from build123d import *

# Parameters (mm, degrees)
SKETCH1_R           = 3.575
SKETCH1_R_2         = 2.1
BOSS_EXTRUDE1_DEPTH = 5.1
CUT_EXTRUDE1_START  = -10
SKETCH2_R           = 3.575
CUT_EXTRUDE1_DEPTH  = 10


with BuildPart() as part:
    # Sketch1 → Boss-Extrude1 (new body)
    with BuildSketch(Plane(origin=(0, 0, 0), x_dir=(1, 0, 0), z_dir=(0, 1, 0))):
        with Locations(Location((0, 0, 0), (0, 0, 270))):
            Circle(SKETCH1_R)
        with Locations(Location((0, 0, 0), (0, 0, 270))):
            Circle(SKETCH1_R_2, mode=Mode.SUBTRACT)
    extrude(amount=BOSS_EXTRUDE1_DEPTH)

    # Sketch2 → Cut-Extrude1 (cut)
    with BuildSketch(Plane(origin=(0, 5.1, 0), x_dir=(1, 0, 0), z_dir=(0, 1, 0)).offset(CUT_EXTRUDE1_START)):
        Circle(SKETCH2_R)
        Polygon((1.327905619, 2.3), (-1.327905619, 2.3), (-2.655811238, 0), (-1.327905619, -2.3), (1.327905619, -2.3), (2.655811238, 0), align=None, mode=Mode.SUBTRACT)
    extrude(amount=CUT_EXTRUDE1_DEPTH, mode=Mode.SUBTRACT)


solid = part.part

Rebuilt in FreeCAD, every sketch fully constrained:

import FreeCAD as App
import Part
import Sketcher
Q = App.Units.Quantity


def add_polygon(sketch, points):
    """Adds a closed chain of lines whose ends are joined by coincident constraints."""
    first, n = sketch.GeometryCount, len(points)
    for a, b in zip(points, points[1:] + points[:1]):
        sketch.addGeometry(Part.LineSegment(App.Vector(*a, 0), App.Vector(*b, 0)), False)
    for i in range(n):
        sketch.addConstraint(Sketcher.Constraint("Coincident", first + i, 2, first + (i + 1) % n, 1))

doc = App.newDocument("Part")
body = doc.addObject("PartDesign::Body", "Body")

# Sketch on XZ plane
sketch1 = body.newObject("Sketcher::SketchObject", "Sketch")
sketch1.AttachmentSupport = (doc.getObject("XZ_Plane"), [""])
sketch1.MapMode = "FlatFace"
sketch1.addGeometry([
    Part.Circle(App.Vector(0, 0, 0), App.Vector(0, 0, 1), 3.575),
    Part.Circle(App.Vector(0, 0, 0), App.Vector(0, 0, 1), 2.1),
], False)
sketch1.addConstraint([
    Sketcher.Constraint("Coincident", 0, 3, -1, 1),
    Sketcher.Constraint("Coincident", 1, 3, -1, 1),
    Sketcher.Constraint("Diameter", 1, Q("4.2 mm")),
    Sketcher.Constraint("Diameter", 0, Q("7.15 mm")),
])
pad1 = body.newObject("PartDesign::Pad", "Pad")
pad1.Profile = sketch1
pad1.Length = 5.1
pad1.Reversed = True

# Sketch on XZ plane
sketch2 = body.newObject("Sketcher::SketchObject", "Sketch001")
sketch2.AttachmentSupport = (doc.getObject("XZ_Plane"), [""])
sketch2.MapMode = "FlatFace"
sketch2.AttachmentOffset = App.Placement(App.Vector(0, 0, 4.9), App.Rotation())
sketch2.addGeometry(Part.Circle(App.Vector(0, 0, 0), App.Vector(0, 0, 1), 3.575), False)  # 0
add_polygon(sketch2, [(-1.327906, -2.3), (1.327906, -2.3), (2.655811, 0), (1.327906, 2.3), (-1.327906, 2.3), (-2.655811, 0)])  # lines 1-6
sketch2.addConstraint([
    Sketcher.Constraint("Horizontal", 1),
    Sketcher.Constraint("Horizontal", 4),
    Sketcher.Constraint("Coincident", 0, 3, -1, 1),
    Sketcher.Constraint("Symmetric", 1, 2, 4, 2, -1, 1),
    Sketcher.Constraint("Symmetric", 2, 2, 5, 2, -1, 1),
    Sketcher.Constraint("PointOnObject", 2, 2, -1),
    Sketcher.Constraint("Parallel", 3, 6),
    Sketcher.Constraint("Vertical", 1, 2, 3, 2),
    Sketcher.Constraint("Diameter", 0, Q("7.15 mm")),
    Sketcher.Constraint("Angle", 2, Q("60 deg")),
    Sketcher.Constraint("DistanceY", 1, 2, -1, 1, Q("2.3 mm")),
    Sketcher.Constraint("DistanceX", 1, 1, 1, 2, Q("2.655811 mm")),
])
pocket1 = body.newObject("PartDesign::Pocket", "Pocket")
pocket1.Profile = sketch2
pocket1.Length = 10

doc.recompute()
